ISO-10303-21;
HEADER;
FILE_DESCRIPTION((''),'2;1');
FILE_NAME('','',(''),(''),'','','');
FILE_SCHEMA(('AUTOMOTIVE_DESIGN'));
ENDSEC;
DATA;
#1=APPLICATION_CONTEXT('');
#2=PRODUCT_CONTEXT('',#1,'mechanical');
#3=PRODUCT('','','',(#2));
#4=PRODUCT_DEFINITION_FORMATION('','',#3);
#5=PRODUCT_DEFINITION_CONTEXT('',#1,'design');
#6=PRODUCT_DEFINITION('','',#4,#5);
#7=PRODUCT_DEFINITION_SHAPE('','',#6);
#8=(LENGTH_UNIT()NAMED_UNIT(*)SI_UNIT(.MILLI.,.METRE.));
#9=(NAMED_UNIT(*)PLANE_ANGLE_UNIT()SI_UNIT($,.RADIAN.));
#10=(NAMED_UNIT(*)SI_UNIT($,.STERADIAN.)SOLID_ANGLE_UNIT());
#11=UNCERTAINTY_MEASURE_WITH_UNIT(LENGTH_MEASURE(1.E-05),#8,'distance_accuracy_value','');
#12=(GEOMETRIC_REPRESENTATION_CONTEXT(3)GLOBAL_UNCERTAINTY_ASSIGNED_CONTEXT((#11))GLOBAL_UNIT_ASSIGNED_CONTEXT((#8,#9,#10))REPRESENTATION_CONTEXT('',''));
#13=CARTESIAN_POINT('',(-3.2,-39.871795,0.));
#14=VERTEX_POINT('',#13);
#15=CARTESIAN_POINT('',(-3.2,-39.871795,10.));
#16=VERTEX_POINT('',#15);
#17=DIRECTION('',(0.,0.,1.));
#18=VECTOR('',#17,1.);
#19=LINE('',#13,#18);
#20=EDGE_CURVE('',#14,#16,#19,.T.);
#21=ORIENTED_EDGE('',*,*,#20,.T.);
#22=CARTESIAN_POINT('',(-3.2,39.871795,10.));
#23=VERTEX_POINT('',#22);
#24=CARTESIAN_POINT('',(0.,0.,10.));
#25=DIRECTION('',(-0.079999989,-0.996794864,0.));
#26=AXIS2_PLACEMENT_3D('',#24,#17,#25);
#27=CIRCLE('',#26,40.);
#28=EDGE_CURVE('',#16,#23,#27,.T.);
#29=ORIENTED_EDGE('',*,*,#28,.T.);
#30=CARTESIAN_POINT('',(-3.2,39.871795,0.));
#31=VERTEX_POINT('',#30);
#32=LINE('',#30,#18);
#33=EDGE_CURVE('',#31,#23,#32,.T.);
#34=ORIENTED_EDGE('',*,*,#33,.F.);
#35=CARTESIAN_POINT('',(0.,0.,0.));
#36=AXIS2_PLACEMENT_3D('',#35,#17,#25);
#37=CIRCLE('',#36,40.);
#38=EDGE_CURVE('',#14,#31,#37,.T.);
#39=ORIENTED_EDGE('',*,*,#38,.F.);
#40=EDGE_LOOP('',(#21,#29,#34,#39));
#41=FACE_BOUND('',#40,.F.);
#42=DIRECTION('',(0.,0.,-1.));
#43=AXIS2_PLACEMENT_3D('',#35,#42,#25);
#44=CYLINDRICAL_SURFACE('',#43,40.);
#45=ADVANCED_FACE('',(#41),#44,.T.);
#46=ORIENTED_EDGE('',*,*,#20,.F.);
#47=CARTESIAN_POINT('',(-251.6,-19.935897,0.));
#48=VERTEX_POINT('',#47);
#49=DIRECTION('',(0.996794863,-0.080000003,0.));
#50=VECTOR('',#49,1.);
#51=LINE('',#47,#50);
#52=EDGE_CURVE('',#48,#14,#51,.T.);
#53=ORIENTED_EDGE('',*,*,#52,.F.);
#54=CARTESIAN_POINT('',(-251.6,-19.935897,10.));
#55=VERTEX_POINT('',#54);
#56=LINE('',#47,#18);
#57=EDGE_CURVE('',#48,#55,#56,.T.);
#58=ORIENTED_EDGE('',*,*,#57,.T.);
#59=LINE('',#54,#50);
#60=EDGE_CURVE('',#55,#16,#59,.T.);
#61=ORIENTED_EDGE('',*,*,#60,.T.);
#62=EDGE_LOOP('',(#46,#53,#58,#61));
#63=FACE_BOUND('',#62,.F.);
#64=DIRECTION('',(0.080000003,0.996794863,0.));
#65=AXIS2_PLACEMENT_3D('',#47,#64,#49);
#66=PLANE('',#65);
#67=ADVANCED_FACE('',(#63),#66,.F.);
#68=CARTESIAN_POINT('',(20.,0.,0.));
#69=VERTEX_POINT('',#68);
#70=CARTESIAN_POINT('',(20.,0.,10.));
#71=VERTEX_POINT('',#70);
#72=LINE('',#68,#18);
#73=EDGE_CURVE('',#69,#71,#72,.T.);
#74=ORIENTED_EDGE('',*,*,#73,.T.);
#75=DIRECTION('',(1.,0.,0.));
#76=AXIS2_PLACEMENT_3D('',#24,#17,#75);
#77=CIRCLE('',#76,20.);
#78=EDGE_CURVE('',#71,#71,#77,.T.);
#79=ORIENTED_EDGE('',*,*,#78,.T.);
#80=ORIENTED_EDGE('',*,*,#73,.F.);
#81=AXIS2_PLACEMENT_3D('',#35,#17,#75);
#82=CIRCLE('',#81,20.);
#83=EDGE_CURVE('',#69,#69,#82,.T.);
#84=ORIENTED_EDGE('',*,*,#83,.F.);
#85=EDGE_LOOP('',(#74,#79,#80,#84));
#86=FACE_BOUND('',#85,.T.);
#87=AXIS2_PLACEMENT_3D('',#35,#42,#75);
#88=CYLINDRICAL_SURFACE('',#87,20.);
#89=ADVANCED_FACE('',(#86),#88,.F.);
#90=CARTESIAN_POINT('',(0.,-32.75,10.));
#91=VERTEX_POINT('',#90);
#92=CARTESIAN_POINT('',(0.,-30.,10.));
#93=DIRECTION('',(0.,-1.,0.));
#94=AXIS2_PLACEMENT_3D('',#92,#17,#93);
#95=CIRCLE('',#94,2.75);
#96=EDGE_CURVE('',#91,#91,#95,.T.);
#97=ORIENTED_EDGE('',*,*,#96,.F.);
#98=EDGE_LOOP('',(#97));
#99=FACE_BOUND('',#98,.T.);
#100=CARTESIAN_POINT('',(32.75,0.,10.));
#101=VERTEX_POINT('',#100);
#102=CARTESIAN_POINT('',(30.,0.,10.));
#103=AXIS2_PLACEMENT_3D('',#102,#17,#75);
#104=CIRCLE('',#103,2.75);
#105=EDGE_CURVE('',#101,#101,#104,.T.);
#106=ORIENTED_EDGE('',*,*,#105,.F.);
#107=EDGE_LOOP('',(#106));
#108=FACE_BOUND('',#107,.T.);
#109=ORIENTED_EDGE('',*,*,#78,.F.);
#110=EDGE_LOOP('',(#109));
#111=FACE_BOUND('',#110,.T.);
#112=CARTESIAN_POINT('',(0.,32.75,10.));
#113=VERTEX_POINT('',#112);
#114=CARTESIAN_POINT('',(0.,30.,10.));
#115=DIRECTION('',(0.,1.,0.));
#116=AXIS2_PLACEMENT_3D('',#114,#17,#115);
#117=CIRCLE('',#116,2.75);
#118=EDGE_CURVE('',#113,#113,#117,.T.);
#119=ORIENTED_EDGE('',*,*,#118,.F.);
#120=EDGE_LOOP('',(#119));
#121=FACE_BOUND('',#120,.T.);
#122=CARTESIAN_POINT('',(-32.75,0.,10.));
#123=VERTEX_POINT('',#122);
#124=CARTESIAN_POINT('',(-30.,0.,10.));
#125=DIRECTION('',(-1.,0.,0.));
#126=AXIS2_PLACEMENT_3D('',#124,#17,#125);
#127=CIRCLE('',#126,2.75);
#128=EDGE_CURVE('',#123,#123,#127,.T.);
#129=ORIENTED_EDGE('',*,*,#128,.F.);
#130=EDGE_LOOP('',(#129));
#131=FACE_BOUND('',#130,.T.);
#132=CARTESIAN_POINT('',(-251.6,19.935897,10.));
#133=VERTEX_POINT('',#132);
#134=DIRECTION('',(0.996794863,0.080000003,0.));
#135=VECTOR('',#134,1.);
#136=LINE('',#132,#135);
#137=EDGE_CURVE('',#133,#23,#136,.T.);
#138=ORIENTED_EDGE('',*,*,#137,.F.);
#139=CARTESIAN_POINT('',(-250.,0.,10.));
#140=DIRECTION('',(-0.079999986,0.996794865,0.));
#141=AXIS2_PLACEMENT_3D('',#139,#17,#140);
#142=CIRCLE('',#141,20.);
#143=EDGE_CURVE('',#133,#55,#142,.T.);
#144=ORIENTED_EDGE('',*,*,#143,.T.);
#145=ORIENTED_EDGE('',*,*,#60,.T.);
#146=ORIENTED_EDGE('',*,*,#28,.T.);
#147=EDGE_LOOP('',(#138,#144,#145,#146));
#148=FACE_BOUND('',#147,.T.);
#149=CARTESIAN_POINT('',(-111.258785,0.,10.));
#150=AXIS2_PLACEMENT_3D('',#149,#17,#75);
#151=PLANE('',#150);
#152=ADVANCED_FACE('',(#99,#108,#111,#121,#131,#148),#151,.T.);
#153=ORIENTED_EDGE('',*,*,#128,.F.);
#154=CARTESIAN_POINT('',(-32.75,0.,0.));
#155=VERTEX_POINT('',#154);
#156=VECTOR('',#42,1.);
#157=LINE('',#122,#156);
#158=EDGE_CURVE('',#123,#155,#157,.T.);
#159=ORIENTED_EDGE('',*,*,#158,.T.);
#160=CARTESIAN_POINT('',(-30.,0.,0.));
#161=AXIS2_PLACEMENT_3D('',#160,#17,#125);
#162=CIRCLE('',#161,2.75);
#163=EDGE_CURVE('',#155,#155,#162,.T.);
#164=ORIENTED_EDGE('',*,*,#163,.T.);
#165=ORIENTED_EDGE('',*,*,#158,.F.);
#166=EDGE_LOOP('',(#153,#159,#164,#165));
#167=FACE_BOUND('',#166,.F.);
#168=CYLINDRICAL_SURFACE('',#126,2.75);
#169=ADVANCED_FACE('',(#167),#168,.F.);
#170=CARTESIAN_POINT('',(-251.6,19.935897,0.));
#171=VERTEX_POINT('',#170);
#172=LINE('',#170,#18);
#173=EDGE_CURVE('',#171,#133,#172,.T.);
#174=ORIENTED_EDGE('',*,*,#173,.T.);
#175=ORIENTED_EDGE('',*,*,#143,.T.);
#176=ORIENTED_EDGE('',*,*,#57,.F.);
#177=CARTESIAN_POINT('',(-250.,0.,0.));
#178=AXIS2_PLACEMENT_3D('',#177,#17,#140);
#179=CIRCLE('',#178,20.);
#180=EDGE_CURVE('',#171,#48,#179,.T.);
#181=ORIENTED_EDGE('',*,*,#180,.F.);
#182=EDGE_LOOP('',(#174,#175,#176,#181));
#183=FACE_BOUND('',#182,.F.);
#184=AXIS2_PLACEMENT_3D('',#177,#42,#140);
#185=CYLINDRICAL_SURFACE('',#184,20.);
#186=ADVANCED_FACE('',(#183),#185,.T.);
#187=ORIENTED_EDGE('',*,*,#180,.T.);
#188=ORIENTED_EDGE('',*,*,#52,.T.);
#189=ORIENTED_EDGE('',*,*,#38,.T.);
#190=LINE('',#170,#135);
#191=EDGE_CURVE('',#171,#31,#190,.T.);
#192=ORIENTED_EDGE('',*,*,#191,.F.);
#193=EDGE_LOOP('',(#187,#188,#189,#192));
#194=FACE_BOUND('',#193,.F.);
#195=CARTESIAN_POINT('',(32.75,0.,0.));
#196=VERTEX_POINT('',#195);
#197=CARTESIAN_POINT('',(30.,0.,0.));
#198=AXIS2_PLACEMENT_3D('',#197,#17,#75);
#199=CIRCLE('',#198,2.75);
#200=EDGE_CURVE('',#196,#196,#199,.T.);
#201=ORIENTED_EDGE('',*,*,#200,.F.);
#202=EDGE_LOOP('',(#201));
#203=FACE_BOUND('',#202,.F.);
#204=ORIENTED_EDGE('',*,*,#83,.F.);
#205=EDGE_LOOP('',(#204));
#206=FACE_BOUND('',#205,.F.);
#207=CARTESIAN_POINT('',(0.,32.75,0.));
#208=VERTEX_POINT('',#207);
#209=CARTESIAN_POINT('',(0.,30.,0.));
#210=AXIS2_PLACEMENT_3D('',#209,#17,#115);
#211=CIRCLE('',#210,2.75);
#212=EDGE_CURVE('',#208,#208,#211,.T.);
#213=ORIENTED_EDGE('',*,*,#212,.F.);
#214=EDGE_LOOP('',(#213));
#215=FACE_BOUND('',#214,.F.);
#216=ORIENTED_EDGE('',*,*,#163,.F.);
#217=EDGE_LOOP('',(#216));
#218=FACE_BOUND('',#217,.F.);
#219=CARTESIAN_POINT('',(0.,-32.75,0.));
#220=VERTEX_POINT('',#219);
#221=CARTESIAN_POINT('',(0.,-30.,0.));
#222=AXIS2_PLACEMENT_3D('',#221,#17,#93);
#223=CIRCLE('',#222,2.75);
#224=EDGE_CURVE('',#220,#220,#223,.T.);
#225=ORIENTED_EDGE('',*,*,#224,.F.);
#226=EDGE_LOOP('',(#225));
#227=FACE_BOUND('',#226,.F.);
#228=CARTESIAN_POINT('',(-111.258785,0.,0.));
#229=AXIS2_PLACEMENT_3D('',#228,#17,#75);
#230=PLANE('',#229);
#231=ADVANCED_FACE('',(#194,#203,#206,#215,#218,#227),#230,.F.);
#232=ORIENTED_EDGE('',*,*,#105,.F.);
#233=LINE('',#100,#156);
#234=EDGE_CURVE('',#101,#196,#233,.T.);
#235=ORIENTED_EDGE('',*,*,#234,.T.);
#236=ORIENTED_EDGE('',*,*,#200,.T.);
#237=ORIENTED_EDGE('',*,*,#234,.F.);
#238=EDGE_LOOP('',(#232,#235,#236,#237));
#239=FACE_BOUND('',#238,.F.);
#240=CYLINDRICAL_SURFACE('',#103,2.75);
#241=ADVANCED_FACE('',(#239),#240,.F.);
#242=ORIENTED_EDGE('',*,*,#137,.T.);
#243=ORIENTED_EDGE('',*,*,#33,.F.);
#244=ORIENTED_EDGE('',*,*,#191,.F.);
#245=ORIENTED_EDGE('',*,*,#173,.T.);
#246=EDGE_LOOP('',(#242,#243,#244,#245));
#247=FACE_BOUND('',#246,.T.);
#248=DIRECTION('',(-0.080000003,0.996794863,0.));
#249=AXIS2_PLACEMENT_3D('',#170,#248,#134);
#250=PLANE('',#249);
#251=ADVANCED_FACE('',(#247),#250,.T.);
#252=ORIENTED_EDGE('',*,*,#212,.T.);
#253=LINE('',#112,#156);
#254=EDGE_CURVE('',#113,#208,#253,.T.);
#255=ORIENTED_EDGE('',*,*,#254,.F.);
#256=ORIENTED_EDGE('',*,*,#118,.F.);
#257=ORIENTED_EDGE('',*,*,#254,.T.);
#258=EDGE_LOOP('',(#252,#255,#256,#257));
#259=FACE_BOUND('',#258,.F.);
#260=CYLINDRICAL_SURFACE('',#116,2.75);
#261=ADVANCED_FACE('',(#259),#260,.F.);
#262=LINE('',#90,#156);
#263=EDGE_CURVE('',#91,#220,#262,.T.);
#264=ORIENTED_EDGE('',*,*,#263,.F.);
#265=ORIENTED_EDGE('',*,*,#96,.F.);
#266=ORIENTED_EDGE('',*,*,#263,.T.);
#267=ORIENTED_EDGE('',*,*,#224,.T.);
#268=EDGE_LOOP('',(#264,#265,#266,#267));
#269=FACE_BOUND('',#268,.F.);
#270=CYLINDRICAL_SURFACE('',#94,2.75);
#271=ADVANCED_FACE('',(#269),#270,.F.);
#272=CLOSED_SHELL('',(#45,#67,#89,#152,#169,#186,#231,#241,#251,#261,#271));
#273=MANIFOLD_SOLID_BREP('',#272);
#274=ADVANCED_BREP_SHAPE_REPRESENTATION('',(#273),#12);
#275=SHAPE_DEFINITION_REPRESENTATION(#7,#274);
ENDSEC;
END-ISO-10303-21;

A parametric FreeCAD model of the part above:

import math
import FreeCAD as App
import Part
import Sketcher
from FreeCAD import Vector
Q = App.Units.Quantity

doc = App.newDocument("Part")
body = doc.addObject("PartDesign::Body", "Body")

# Sketch on XY plane
sketch1 = doc.addObject("Sketcher::SketchObject", "Sketch")
body.addObject(sketch1)
sketch1.AttachmentSupport = (doc.XY_Plane, [""])
sketch1.MapMode = "FlatFace"
sketch1.addGeometry([
    Part.ArcOfCircle(Part.Circle(Vector(-250, 0, 0), Vector(0, 0, 1), 20), math.radians(94.588565), math.radians(265.411435)),  # 0
    Part.LineSegment(Vector(-251.6, -19.935897, 0), Vector(-3.2, -39.871795, 0)),  # 1
    Part.ArcOfCircle(Part.Circle(Vector(0, 0, 0), Vector(0, 0, 1), 40), math.radians(-94.588565), math.radians(94.588565)),  # 2
    Part.LineSegment(Vector(-3.2, 39.871795, 0), Vector(-251.6, 19.935897, 0)),  # 3
    Part.Circle(Vector(0, 0, 0), Vector(0, 0, 1), 20),  # 4
], False)
sketch1.addConstraint([
    Sketcher.Constraint("Tangent", 0, 2, 1, 1),
    Sketcher.Constraint("Tangent", 1, 2, 2, 1),
    Sketcher.Constraint("Tangent", 2, 2, 3, 1),
    Sketcher.Constraint("Tangent", 3, 2, 0, 1),
    Sketcher.Constraint("Coincident", 2, 3, -1, 1),
    Sketcher.Constraint("Coincident", 4, 3, -1, 1),
    Sketcher.Constraint("Equal", 0, 4),
    Sketcher.Constraint("PointOnObject", 0, 3, -1),
    Sketcher.Constraint("Diameter", 4, Q("40 mm")),
    Sketcher.Constraint("Radius", 2, Q("40 mm")),
    Sketcher.Constraint("DistanceX", 0, 3, -1, 1, Q("250 mm")),
])
pad1 = doc.addObject("PartDesign::Pad", "Pad")
body.addObject(pad1)
pad1.Profile = sketch1
pad1.Length = 10

# Sketch on XY plane
sketch2 = doc.addObject("Sketcher::SketchObject", "Sketch001")
body.addObject(sketch2)
sketch2.AttachmentSupport = (doc.XY_Plane, [""])
sketch2.MapMode = "FlatFace"
sketch2.AttachmentOffset = App.Placement(Vector(0, 0, 10), App.Rotation())
sketch2.addGeometry(Part.Circle(Vector(30, 0, 0), Vector(0, 0, 1), 2.75), False)
sketch2.addConstraint([
    Sketcher.Constraint("PointOnObject", 0, 3, -1),
    Sketcher.Constraint("Diameter", 0, Q("5.5 mm")),
    Sketcher.Constraint("DistanceX", -1, 1, 0, 3, Q("30 mm")),
])
pocket1 = doc.addObject("PartDesign::Pocket", "Pocket")
body.addObject(pocket1)
pocket1.Profile = sketch2
pocket1.Length = 25
doc.recompute()

polarpattern = doc.addObject("PartDesign::PolarPattern", "PolarPattern")
body.addObject(polarpattern)
polarpattern.Originals = [pocket1]
polarpattern.Axis = (doc.Z_Axis, [""])
polarpattern.Angle = 360
polarpattern.Occurrences = 4
body.Tip = polarpattern

doc.recompute()
